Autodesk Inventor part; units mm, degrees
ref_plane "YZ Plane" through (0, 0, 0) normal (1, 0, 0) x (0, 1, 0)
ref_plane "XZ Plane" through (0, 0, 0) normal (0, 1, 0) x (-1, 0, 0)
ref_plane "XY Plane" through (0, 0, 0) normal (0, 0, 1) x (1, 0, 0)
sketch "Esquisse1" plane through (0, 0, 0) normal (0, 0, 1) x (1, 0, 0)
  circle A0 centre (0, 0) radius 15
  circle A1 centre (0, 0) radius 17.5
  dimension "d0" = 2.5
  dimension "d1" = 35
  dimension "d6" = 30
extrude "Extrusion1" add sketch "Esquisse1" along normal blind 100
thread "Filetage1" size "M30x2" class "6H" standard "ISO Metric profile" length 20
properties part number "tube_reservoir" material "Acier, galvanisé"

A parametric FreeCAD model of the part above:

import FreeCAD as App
import Part
import Sketcher
from FreeCAD import Vector

doc = App.newDocument("Part")
body = doc.addObject("PartDesign::Body", "Body")

# Sketch on XY plane
sketch1 = doc.addObject("Sketcher::SketchObject", "Sketch")
body.addObject(sketch1)
sketch1.AttachmentSupport = (doc.XY_Plane, [""])
sketch1.MapMode = "FlatFace"
sketch1.addGeometry(Part.Circle(Vector(0, 0, 0), Vector(0, 0, 1), 18), False)
sketch1.addGeometry(Part.Circle(Vector(0, 0, 0), Vector(0, 0, 1), 15), False)
sketch1.addConstraint(Sketcher.Constraint("Coincident", 0, 3, -1, 1))
sketch1.addConstraint(Sketcher.Constraint("Coincident", 1, 3, -1, 1))
sketch1.addConstraint(Sketcher.Constraint("Diameter", 0, 35.0))
sketch1.addConstraint(Sketcher.Constraint("Diameter", 1, 30.0))
pad1 = doc.addObject("PartDesign::Pad", "Pad")
body.addObject(pad1)
pad1.Profile = sketch1
pad1.Length = 100

doc.recompute()
